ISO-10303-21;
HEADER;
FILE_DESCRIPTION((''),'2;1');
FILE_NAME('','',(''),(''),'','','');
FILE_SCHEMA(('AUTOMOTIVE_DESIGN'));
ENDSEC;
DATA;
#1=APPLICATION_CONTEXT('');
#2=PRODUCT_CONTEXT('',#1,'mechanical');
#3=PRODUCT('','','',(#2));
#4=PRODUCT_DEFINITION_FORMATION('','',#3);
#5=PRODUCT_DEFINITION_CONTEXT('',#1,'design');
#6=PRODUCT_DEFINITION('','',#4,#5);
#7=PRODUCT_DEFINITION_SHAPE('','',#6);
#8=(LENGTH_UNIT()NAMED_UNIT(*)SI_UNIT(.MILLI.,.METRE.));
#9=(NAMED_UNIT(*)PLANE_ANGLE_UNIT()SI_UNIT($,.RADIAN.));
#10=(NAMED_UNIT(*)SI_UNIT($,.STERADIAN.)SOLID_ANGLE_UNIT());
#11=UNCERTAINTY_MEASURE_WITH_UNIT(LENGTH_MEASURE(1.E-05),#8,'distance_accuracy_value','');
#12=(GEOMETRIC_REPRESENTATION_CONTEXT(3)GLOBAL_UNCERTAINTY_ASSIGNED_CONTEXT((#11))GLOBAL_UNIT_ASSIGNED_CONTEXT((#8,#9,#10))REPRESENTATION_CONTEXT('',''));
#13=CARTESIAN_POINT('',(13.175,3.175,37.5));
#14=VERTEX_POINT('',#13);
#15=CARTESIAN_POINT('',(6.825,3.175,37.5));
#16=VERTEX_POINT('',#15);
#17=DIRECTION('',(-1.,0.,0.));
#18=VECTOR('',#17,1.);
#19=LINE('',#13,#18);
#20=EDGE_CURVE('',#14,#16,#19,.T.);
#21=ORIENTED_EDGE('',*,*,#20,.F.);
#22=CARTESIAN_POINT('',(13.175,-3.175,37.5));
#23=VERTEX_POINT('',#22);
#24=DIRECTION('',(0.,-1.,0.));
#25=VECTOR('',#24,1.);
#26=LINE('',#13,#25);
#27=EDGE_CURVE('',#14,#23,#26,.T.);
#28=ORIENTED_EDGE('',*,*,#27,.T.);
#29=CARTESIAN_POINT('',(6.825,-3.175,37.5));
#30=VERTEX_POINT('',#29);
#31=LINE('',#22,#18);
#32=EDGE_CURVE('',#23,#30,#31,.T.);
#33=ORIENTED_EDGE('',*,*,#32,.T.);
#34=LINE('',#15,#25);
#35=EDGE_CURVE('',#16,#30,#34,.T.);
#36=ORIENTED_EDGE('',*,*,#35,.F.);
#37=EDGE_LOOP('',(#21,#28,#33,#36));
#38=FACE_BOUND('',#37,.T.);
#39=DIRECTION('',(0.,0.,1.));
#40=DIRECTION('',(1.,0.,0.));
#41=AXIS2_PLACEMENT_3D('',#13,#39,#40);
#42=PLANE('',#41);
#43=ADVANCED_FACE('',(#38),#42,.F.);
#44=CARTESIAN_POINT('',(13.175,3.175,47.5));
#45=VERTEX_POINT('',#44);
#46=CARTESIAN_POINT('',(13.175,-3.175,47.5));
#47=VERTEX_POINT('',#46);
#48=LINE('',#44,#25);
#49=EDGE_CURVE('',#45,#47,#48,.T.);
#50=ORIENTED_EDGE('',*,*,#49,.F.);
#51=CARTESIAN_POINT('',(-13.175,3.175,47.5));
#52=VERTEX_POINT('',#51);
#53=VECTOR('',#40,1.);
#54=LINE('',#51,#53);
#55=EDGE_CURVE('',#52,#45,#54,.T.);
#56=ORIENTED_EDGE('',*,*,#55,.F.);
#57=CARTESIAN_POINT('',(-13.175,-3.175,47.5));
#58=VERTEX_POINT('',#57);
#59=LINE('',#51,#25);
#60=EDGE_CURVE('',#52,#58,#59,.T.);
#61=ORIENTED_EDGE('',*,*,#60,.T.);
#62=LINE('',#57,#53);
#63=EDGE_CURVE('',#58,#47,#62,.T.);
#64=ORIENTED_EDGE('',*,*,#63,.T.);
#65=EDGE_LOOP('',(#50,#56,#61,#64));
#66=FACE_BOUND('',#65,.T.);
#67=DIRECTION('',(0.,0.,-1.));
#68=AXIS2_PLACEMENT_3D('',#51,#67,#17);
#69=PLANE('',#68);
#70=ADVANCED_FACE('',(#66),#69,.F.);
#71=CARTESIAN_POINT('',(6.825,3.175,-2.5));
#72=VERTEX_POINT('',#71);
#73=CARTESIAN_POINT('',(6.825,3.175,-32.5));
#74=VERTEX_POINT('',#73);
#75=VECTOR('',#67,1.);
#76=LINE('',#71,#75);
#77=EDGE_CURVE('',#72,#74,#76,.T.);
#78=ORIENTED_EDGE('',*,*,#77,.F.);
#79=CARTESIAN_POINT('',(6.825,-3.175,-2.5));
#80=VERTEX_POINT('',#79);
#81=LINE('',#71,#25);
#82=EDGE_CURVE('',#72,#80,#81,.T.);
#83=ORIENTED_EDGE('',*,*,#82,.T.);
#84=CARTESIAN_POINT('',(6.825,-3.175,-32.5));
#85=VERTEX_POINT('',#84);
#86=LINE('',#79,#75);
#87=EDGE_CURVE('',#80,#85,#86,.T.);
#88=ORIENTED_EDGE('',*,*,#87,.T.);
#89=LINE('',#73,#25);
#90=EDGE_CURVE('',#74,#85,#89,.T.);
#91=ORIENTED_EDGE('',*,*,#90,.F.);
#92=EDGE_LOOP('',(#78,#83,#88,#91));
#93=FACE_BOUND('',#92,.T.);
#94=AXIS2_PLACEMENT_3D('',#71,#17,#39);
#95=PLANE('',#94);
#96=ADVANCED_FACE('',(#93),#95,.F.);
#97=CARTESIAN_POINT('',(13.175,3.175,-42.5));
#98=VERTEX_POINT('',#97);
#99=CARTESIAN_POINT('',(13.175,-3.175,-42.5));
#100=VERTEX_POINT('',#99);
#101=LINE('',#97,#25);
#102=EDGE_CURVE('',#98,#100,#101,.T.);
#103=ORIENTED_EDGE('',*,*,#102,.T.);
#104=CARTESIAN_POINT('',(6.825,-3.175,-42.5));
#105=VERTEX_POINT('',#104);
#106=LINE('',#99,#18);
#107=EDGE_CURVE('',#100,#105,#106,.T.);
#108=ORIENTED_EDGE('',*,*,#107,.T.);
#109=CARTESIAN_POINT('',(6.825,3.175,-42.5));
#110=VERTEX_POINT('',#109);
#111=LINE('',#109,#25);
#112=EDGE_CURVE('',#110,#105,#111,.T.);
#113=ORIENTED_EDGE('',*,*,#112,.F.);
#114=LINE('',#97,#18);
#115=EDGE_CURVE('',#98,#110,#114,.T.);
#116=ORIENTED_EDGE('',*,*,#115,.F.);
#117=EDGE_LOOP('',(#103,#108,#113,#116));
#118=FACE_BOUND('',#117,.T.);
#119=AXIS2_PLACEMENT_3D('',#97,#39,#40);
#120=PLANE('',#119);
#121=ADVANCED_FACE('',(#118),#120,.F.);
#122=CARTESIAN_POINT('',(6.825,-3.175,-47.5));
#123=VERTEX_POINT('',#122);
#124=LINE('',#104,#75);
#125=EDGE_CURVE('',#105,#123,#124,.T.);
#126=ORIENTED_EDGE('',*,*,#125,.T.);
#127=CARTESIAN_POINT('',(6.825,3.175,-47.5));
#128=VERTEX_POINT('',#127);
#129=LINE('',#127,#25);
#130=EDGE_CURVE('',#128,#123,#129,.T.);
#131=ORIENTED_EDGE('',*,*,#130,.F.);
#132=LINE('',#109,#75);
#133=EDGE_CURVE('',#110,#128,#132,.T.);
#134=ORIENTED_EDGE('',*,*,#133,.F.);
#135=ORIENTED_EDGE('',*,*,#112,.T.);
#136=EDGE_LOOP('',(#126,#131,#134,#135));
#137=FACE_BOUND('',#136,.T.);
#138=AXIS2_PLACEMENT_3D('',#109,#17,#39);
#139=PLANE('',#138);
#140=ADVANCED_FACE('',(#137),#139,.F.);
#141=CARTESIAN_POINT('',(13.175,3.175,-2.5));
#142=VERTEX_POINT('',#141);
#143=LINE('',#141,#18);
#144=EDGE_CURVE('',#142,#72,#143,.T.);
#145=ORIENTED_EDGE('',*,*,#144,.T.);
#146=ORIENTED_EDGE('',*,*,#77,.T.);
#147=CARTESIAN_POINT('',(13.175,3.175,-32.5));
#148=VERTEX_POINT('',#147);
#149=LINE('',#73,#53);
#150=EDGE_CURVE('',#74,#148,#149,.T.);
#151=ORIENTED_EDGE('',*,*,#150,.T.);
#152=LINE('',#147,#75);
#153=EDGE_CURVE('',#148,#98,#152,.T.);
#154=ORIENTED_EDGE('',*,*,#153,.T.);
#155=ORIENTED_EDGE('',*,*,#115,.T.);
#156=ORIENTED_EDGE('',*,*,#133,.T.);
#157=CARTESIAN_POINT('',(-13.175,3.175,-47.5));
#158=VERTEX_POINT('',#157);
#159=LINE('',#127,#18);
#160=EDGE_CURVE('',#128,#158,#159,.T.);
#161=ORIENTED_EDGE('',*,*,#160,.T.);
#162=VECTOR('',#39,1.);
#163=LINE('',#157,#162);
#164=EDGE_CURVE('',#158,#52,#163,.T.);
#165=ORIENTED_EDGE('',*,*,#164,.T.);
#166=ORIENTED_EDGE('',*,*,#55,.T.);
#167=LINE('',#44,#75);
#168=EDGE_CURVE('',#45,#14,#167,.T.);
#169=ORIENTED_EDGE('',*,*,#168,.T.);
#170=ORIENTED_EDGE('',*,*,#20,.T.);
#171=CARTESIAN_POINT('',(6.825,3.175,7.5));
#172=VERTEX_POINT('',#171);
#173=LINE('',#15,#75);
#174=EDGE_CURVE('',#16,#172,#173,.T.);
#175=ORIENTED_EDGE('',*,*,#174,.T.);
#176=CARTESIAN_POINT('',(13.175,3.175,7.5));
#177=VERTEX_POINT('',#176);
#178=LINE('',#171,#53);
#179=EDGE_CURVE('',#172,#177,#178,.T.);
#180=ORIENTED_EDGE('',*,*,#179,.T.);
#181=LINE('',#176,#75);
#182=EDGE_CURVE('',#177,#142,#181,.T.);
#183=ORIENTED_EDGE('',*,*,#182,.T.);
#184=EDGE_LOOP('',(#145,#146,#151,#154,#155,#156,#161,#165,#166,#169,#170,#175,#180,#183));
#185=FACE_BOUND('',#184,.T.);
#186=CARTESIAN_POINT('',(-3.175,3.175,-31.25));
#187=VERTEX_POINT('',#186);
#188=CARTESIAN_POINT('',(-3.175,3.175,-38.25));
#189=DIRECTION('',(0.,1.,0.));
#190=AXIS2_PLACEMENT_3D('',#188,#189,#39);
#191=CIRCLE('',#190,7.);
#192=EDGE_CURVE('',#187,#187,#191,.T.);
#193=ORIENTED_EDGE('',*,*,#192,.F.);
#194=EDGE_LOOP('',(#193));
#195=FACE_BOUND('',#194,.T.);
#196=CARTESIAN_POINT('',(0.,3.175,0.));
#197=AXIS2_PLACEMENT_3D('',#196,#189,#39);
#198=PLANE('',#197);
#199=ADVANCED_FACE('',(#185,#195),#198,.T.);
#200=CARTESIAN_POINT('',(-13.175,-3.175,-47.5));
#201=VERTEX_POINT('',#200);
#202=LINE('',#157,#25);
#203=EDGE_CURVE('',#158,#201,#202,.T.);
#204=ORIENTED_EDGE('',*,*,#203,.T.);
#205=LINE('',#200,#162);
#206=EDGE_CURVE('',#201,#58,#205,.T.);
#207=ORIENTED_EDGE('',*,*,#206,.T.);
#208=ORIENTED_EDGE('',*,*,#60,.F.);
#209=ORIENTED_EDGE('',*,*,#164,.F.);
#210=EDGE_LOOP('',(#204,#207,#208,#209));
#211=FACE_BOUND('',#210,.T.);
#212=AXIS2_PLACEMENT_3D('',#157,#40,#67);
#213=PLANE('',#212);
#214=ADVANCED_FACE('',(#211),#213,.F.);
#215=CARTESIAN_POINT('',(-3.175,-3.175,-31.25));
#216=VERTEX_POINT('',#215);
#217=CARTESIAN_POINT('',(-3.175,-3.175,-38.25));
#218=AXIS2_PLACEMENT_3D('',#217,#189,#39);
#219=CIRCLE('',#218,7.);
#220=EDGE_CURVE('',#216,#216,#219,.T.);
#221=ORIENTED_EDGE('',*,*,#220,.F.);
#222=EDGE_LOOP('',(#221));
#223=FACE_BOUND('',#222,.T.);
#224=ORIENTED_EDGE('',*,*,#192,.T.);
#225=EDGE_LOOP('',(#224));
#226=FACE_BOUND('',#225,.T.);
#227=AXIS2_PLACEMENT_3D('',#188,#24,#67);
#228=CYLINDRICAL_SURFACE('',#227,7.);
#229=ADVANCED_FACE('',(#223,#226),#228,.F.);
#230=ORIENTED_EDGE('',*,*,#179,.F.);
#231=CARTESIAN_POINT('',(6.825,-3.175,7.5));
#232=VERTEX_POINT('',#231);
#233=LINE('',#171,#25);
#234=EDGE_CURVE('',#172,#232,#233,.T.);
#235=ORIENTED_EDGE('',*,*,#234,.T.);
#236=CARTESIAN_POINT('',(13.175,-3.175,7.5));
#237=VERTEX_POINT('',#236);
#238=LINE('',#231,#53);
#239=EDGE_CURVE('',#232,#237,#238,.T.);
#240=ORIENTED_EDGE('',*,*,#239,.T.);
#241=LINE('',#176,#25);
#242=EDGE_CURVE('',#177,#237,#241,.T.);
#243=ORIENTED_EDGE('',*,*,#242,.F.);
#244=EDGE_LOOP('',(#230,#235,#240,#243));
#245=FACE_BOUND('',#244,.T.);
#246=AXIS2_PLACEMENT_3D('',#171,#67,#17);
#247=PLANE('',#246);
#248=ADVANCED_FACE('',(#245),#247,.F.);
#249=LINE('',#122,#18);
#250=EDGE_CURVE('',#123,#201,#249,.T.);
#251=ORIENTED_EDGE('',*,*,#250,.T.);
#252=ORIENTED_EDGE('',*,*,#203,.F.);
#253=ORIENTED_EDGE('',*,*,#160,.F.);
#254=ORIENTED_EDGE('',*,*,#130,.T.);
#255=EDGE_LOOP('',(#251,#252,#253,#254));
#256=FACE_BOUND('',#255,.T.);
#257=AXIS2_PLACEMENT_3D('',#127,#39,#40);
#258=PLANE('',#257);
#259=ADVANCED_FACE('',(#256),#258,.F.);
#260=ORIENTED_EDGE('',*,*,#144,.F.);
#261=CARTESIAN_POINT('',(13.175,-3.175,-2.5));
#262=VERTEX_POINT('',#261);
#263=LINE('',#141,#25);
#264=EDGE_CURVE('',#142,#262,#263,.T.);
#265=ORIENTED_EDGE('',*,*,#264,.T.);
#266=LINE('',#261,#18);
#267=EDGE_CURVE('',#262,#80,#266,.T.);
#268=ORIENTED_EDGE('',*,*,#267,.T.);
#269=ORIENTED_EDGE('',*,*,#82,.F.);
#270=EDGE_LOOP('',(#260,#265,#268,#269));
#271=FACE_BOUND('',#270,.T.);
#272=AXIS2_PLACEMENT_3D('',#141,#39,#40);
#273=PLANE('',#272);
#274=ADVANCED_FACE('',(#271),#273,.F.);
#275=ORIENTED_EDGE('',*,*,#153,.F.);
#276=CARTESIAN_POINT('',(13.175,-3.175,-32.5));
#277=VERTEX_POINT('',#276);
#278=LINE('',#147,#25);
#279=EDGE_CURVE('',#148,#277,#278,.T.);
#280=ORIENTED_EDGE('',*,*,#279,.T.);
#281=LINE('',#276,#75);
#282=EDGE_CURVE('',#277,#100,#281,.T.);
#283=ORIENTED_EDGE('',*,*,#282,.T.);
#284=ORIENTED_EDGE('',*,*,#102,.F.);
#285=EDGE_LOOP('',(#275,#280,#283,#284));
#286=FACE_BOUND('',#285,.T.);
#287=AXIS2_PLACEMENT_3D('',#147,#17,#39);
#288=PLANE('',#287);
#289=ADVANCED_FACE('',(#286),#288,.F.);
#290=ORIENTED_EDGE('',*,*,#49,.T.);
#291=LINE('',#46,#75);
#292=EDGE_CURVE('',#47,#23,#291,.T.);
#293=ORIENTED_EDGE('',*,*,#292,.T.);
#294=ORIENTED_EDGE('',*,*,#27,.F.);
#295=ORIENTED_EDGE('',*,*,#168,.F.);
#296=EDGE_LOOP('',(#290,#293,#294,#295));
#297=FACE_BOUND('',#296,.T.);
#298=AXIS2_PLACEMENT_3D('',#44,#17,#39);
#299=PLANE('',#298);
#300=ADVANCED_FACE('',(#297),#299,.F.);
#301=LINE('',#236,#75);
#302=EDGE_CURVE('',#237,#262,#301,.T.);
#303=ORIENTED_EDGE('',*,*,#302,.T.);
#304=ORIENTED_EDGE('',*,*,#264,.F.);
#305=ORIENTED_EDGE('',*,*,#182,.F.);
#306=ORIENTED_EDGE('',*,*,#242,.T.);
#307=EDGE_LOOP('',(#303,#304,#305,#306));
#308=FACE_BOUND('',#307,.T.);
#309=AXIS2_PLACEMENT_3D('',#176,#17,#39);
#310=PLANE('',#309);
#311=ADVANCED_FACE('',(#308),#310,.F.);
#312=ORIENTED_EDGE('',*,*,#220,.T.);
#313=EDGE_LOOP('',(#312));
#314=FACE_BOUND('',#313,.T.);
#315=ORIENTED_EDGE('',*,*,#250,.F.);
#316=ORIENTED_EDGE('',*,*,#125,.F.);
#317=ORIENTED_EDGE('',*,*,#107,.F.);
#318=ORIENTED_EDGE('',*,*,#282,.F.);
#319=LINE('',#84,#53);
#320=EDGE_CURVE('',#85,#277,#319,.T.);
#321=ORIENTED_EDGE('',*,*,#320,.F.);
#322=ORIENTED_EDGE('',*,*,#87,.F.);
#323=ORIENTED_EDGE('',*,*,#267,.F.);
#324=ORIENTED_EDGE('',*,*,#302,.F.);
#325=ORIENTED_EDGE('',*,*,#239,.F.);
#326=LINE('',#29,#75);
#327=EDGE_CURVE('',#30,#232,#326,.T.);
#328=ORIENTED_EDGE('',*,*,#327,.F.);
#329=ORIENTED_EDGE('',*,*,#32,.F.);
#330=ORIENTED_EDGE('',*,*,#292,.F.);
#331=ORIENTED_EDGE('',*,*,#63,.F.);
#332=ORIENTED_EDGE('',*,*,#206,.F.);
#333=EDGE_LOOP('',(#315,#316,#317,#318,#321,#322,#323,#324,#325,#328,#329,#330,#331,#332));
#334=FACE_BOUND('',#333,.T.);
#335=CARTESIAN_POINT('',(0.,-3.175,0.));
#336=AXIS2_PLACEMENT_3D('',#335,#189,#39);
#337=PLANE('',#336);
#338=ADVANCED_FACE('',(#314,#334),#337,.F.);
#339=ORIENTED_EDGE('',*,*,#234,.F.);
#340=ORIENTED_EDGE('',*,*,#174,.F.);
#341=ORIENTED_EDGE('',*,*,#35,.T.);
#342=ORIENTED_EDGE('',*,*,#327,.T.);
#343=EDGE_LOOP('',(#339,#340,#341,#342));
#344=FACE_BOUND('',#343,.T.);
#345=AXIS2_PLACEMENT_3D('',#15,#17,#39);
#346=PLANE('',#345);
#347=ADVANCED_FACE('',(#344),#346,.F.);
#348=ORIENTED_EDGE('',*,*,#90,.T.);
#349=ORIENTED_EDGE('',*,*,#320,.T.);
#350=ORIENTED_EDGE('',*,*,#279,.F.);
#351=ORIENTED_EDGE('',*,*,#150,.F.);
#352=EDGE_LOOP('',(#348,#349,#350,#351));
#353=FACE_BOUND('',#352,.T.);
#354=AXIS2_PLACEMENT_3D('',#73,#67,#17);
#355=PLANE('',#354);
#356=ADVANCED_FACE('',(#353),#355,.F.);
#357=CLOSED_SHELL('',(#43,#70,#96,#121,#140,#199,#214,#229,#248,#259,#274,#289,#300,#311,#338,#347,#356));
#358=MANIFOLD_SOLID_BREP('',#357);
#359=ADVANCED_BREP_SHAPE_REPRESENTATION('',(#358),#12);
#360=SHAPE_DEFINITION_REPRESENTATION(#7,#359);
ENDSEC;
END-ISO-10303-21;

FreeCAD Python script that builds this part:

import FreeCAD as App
import Part
import Sketcher
Q = App.Units.Quantity


def add_polygon(sketch, points):
    """Adds a closed chain of lines whose ends are joined by coincident constraints."""
    first, n = sketch.GeometryCount, len(points)
    for a, b in zip(points, points[1:] + points[:1]):
        sketch.addGeometry(Part.LineSegment(App.Vector(*a, 0), App.Vector(*b, 0)), False)
    for i in range(n):
        sketch.addConstraint(Sketcher.Constraint("Coincident", first + i, 2, first + (i + 1) % n, 1))

doc = App.newDocument("Part")
body = doc.addObject("PartDesign::Body", "Body")

sketch1 = body.newObject("Sketcher::SketchObject", "Sketch")
sketch1.AttachmentSupport = (doc.getObject("XZ_Plane"), [""])
sketch1.MapMode = "FlatFace"
add_polygon(sketch1, [(-13.175, -47.5), (-13.175, 47.5), (13.175, 47.5), (13.175, 37.5), (6.825, 37.5), (6.825, 7.5), (13.175, 7.5), (13.175, -2.5), (6.825, -2.5), (6.825, -32.5), (13.175, -32.5), (13.175, -42.5), (6.825, -42.5), (6.825, -47.5)])
sketch1.addGeometry(Part.Circle(App.Vector(-3.175, -38.25, 0), App.Vector(0, 0, 1), 7), False)
sketch1.addConstraint([
    Sketcher.Constraint("Vertical", 0),
    Sketcher.Constraint("Horizontal", 1),
    Sketcher.Constraint("Vertical", 2),
    Sketcher.Constraint("Horizontal", 3),
    Sketcher.Constraint("Vertical", 4),
    Sketcher.Constraint("Horizontal", 5),
    Sketcher.Constraint("Vertical", 6),
    Sketcher.Constraint("Horizontal", 7),
    Sketcher.Constraint("Vertical", 8),
    Sketcher.Constraint("Horizontal", 9),
    Sketcher.Constraint("Vertical", 10),
    Sketcher.Constraint("Horizontal", 11),
    Sketcher.Constraint("Vertical", 12),
    Sketcher.Constraint("Horizontal", 13),
    Sketcher.Constraint("Symmetric", 1, 2, 13, 2, -1, 1),
    Sketcher.Constraint("Vertical", 2, 2, 5, 2),
    Sketcher.Constraint("Vertical", 4, 2, 7, 2),
    Sketcher.Constraint("Vertical", 6, 2, 9, 2),
    Sketcher.Constraint("Vertical", 8, 2, 11, 2),
    Sketcher.Constraint("Equal", 2, 6),
    Sketcher.Constraint("Equal", 4, 8),
    Sketcher.Constraint("Equal", 6, 10),
    Sketcher.Constraint("Diameter", 14, Q("14 mm")),
    Sketcher.Constraint("DistanceX", 13, 2, 13, 1, Q("20 mm")),
    Sketcher.Constraint("DistanceY", 0, 1, 0, 2, Q("95 mm")),
    Sketcher.Constraint("DistanceY", 2, 2, 2, 1, Q("10 mm")),
    Sketcher.Constraint("DistanceY", 4, 2, 4, 1, Q("30 mm")),
    Sketcher.Constraint("DistanceX", 0, 2, 14, 3, Q("10 mm")),
    Sketcher.Constraint("DistanceX", 1, 1, 1, 2, Q("26.35 mm")),
    Sketcher.Constraint("DistanceY", 14, 3, -1, 1, Q("38.25 mm")),
])
pad1 = body.newObject("PartDesign::Pad", "Pad")
pad1.Profile = sketch1
pad1.Length = 6.35
pad1.Midplane = True

doc.recompute()
